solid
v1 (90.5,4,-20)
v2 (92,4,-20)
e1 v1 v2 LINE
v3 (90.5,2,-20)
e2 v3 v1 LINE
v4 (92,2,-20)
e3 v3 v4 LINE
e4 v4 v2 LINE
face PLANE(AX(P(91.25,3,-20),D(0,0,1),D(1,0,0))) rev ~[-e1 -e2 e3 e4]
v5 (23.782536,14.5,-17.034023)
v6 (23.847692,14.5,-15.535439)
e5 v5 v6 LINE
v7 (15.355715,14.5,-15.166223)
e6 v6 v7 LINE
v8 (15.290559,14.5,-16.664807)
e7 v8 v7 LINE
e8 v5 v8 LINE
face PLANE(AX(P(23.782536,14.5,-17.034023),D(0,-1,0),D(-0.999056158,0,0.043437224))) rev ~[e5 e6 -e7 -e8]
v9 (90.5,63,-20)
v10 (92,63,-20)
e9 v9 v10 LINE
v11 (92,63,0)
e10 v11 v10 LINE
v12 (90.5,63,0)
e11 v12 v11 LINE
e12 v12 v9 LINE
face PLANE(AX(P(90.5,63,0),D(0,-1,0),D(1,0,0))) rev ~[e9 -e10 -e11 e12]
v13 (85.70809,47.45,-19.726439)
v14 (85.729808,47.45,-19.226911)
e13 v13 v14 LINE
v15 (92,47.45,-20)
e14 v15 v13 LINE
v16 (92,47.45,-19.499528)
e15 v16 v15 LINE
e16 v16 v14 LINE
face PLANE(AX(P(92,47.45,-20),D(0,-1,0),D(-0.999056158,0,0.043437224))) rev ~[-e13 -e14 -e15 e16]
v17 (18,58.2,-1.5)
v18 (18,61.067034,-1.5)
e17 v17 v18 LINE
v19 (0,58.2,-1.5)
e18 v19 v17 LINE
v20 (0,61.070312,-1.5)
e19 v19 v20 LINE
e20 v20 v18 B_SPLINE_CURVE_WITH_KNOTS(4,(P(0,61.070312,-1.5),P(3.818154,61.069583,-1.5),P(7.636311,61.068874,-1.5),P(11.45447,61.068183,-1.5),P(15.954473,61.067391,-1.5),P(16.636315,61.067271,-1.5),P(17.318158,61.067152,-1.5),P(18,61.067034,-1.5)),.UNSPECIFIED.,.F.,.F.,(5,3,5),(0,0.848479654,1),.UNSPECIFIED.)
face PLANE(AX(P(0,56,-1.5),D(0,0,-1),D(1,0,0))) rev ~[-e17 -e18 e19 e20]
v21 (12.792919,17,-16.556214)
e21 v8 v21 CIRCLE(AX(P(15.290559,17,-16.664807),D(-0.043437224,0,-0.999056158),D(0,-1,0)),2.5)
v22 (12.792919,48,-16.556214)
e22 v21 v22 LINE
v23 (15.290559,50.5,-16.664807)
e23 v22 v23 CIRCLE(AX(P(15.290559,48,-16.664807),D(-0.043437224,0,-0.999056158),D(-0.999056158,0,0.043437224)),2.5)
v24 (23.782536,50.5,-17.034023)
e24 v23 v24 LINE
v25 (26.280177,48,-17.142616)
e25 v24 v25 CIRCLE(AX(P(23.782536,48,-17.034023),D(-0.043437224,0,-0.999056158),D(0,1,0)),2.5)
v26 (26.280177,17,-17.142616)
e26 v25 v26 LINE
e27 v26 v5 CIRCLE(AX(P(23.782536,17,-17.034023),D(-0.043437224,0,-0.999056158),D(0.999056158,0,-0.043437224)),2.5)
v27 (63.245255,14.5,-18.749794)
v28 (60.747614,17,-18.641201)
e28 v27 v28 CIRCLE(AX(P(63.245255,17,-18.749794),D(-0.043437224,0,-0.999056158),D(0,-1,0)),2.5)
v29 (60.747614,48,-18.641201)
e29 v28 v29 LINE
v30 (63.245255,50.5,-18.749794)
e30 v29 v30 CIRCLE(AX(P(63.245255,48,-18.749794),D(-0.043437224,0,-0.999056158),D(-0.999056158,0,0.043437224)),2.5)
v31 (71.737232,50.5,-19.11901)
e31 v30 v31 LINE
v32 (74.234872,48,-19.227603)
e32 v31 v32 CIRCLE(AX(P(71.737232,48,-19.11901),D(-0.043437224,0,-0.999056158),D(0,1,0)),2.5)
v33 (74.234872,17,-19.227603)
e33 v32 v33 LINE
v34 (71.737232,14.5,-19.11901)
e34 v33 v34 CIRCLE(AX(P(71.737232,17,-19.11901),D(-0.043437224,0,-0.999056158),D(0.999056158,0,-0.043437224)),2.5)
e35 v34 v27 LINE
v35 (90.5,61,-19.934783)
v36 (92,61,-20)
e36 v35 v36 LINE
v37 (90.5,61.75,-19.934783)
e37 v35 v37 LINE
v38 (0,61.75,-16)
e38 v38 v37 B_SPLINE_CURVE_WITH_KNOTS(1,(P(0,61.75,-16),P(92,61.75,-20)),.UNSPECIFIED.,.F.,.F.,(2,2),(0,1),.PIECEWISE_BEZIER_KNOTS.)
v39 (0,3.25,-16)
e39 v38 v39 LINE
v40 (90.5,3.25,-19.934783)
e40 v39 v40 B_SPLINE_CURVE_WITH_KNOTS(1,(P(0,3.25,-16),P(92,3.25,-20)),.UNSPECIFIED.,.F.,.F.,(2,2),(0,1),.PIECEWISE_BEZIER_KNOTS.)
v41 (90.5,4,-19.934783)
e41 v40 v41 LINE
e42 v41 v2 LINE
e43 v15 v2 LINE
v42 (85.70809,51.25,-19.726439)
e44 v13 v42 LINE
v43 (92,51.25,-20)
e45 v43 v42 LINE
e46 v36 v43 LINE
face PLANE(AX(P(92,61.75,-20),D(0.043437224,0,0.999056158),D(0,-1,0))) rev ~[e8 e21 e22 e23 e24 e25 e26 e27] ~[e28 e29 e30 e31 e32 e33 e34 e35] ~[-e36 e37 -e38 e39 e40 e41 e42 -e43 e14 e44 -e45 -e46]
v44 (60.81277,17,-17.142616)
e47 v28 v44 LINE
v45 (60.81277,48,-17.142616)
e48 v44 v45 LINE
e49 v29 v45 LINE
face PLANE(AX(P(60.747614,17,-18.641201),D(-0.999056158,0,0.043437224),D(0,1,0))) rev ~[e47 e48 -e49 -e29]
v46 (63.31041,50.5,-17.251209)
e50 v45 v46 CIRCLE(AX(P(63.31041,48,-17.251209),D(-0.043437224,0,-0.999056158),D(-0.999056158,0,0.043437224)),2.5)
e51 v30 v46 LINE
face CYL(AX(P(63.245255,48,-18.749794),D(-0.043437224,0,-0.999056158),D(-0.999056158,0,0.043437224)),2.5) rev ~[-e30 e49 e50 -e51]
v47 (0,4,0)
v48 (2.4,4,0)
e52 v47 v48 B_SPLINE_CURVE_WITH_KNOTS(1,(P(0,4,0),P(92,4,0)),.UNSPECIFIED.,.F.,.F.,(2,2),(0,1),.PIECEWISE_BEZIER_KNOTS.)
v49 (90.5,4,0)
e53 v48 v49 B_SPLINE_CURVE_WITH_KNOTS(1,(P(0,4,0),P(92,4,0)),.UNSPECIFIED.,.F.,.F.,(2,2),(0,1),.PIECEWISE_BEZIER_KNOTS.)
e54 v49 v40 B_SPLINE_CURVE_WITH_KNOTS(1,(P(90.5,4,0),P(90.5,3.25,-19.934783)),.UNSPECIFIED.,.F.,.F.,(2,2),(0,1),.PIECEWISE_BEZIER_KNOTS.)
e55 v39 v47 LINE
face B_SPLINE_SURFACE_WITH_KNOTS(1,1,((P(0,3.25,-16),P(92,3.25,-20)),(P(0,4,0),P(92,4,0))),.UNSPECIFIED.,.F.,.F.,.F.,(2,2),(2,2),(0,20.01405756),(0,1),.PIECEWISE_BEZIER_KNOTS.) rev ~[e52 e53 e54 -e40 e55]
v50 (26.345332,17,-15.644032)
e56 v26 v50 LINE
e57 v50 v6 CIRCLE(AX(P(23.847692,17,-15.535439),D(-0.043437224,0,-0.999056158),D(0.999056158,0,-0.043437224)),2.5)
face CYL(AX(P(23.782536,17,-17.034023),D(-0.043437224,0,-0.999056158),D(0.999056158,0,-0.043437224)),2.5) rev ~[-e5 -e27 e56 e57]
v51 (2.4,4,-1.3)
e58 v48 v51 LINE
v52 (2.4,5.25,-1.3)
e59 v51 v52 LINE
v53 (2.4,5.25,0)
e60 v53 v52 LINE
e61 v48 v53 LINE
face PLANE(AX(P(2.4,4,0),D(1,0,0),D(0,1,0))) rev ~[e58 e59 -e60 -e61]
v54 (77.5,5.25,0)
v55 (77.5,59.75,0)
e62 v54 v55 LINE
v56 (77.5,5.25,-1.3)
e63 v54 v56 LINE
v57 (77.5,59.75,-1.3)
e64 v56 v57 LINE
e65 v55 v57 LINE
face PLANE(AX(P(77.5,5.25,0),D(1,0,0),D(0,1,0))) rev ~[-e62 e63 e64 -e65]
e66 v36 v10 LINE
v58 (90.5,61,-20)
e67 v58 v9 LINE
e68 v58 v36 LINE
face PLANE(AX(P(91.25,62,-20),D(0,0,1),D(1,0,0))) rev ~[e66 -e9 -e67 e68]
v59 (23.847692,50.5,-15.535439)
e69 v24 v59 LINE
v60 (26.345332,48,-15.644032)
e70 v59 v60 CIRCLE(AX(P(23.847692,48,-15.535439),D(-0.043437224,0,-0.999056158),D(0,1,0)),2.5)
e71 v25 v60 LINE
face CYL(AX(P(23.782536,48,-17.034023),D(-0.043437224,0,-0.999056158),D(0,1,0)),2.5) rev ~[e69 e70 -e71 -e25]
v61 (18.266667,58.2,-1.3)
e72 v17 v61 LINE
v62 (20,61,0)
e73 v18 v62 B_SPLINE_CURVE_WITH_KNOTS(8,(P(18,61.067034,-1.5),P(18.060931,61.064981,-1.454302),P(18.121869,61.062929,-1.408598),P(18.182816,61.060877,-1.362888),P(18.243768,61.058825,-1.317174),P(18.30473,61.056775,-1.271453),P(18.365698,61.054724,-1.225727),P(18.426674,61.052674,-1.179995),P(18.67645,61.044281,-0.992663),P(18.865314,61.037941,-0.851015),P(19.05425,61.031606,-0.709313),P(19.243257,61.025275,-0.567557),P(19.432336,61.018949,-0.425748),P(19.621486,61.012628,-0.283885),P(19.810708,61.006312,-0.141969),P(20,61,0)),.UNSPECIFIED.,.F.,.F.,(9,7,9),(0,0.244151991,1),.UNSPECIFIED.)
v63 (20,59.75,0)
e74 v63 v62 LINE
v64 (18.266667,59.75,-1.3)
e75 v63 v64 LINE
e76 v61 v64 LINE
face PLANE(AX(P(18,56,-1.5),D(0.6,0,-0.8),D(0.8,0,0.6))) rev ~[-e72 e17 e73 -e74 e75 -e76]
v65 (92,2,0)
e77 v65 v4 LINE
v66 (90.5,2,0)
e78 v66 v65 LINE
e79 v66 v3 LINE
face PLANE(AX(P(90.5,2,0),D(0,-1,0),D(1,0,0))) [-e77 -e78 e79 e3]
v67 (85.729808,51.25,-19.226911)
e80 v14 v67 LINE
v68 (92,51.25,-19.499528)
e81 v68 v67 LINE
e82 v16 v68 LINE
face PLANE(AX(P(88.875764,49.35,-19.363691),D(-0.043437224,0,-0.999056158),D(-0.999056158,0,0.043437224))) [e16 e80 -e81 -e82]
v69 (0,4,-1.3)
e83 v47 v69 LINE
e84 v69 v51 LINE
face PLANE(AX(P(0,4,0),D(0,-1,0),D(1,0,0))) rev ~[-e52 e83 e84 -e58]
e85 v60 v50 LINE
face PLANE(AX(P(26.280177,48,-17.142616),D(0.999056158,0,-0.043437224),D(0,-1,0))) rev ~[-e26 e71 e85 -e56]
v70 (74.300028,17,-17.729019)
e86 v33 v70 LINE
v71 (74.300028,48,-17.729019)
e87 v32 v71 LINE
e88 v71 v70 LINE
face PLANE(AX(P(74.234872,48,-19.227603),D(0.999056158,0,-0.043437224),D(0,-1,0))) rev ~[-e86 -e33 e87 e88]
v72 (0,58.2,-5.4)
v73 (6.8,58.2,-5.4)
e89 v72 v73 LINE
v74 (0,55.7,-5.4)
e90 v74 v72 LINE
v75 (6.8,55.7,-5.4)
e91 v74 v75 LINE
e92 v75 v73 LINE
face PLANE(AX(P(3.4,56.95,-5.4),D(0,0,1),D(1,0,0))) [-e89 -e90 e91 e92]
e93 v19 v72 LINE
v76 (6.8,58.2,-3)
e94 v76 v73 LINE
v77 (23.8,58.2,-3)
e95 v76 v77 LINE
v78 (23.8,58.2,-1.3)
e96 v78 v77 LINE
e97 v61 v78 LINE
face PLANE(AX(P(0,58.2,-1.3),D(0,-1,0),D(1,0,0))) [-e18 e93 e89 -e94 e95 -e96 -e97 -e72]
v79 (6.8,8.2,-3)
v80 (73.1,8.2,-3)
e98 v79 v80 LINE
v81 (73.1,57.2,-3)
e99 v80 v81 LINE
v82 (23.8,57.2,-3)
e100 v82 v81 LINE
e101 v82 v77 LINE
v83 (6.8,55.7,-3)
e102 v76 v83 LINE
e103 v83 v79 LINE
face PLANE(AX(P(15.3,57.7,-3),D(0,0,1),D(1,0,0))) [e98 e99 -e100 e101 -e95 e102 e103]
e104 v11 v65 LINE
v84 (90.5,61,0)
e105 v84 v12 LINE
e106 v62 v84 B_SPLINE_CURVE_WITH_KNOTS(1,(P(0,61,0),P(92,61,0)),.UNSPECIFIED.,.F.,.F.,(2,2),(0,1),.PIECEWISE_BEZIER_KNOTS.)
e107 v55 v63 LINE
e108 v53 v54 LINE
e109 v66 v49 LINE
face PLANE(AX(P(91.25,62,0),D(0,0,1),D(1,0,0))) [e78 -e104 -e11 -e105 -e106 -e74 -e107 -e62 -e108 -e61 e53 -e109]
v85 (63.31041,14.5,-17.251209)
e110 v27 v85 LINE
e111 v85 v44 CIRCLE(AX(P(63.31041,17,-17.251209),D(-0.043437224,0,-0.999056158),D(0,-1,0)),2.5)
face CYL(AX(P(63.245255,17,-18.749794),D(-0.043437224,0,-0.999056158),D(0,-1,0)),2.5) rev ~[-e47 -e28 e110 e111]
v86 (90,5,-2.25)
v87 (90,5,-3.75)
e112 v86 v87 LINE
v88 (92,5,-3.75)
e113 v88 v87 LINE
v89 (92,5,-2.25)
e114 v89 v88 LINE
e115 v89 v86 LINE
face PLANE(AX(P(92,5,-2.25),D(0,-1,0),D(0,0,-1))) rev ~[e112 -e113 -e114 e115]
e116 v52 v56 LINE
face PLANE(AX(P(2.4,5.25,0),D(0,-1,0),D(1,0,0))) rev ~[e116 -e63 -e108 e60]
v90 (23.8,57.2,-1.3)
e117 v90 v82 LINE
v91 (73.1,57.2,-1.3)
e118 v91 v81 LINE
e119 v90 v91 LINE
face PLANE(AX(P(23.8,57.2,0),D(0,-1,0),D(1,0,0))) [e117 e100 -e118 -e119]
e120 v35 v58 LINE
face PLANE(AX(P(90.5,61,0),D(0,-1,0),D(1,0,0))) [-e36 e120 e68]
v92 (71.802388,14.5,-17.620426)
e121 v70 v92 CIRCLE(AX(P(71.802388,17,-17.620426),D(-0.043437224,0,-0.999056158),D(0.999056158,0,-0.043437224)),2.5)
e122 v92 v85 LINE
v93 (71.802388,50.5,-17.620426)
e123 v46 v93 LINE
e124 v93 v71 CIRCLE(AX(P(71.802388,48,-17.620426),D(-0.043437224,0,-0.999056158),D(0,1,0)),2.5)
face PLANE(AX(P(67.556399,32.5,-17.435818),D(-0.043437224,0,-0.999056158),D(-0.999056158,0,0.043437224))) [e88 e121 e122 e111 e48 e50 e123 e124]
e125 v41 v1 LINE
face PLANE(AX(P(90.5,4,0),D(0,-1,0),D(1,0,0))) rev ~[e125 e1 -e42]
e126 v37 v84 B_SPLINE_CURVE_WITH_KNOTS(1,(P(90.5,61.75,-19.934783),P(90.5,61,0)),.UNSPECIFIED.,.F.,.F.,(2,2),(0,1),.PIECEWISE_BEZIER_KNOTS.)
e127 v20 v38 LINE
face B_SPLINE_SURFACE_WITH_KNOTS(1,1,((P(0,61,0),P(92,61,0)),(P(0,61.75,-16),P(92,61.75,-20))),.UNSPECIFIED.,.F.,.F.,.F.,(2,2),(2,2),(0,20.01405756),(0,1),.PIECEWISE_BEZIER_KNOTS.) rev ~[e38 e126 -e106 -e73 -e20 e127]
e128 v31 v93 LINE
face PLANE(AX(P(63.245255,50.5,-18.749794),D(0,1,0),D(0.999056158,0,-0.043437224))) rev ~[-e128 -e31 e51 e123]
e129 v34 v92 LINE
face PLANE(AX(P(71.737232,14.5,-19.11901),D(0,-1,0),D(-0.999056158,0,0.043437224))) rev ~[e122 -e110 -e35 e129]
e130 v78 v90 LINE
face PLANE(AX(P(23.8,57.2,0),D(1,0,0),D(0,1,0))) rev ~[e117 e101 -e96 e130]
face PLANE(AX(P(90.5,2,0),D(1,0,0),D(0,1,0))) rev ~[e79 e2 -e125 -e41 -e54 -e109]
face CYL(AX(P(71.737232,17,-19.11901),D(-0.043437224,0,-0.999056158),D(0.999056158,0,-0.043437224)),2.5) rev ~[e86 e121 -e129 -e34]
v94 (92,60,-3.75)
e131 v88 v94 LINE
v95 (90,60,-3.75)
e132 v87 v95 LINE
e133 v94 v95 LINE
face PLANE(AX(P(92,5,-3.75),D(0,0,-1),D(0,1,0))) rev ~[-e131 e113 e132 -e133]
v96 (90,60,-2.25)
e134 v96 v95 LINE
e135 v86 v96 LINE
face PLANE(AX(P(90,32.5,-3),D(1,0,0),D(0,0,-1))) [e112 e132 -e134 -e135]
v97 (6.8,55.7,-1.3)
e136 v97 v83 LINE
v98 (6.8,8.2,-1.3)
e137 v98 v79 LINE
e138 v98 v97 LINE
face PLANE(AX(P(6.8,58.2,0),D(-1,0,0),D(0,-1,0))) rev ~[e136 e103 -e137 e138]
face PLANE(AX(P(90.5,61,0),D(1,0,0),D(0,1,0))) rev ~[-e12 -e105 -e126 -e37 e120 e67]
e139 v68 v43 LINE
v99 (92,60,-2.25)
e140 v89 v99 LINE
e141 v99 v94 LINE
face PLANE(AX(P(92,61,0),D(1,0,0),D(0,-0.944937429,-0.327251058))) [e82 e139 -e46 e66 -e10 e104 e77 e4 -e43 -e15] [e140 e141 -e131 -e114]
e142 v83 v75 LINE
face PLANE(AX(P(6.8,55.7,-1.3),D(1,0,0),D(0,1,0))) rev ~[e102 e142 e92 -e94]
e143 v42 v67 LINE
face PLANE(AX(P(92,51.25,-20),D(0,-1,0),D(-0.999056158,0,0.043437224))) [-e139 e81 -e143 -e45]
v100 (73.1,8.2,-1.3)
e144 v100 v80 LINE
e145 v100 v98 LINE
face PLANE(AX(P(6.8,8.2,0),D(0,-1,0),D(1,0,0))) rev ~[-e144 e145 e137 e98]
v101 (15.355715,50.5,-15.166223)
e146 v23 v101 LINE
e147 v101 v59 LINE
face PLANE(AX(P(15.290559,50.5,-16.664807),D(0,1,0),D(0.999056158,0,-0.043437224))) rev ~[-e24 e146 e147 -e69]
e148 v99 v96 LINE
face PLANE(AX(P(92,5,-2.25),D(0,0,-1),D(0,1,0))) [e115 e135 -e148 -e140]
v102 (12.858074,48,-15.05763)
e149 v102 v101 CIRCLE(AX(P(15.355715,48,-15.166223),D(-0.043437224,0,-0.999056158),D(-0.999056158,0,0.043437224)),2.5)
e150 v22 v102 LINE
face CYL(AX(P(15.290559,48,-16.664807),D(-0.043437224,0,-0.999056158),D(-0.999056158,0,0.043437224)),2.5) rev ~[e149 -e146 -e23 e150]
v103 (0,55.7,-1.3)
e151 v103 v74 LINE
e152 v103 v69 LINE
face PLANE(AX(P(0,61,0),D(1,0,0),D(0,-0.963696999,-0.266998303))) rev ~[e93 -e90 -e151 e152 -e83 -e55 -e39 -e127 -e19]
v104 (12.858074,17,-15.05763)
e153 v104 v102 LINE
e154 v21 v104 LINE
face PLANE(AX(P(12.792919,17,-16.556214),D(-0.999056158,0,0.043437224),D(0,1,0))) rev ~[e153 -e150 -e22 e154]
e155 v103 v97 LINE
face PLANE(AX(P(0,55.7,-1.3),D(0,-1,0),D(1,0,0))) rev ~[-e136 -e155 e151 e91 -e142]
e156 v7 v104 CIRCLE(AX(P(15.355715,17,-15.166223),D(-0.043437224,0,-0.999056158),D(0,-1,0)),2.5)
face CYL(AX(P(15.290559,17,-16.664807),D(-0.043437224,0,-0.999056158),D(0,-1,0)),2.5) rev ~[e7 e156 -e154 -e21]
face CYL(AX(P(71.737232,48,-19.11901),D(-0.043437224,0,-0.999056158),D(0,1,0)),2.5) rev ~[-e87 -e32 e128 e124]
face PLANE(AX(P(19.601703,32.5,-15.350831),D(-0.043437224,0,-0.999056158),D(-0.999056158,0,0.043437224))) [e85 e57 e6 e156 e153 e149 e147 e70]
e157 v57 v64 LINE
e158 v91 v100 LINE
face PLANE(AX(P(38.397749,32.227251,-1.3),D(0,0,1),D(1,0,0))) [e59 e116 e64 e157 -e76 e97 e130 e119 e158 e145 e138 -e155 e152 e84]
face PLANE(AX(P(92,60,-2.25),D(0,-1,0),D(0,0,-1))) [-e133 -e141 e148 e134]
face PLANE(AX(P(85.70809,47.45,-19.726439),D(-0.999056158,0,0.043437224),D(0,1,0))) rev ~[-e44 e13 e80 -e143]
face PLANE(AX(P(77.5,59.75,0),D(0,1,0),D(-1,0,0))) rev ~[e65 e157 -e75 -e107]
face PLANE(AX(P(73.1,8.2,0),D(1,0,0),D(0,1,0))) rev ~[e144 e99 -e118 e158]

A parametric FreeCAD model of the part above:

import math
import FreeCAD as App
import Part
import Sketcher
from FreeCAD import Vector

doc = App.newDocument("Part")
body = doc.addObject("PartDesign::Body", "Body")

sketch1 = body.newObject("Sketcher::SketchObject", "Sketch")
sketch1.AttachmentSupport = (doc.getObject("YZ_Plane"), [""])
sketch1.MapMode = "FlatFace"
sketch1.addGeometry(Part.LineSegment(Vector(61.75, -16, 0), Vector(61, 0, 0)), False)
sketch1.addGeometry(Part.LineSegment(Vector(61, 0, 0), Vector(4, 0, 0)), False)
sketch1.addGeometry(Part.LineSegment(Vector(4, 0, 0), Vector(3.25, -16, 0)), False)
sketch1.addGeometry(Part.LineSegment(Vector(3.25, -16, 0), Vector(61.75, -16, 0)), False)
sketch1.addConstraint(Sketcher.Constraint("Coincident", 0, 2, 1, 1))
sketch1.addConstraint(Sketcher.Constraint("Coincident", 1, 2, 2, 1))
sketch1.addConstraint(Sketcher.Constraint("Coincident", 2, 2, 3, 1))
sketch1.addConstraint(Sketcher.Constraint("Coincident", 3, 2, 0, 1))
sketch1.addConstraint(Sketcher.Constraint("Horizontal", 1))
sketch1.addConstraint(Sketcher.Constraint("Horizontal", 3))
sketch1.addConstraint(Sketcher.Constraint("PointOnObject", 0, 2, -1))
sketch1.addConstraint(Sketcher.Constraint("Equal", 0, 2))
sketch1.addConstraint(Sketcher.Constraint("DistanceX", 1, 2, 1, 1, 57.0))
sketch1.addConstraint(Sketcher.Constraint("DistanceX", 3, 1, 3, 2, 58.5))
sketch1.addConstraint(Sketcher.Constraint("DistanceX", -1, 1, 0, 2, 61.0))
sketch1.addConstraint(Sketcher.Constraint("DistanceY", 2, 2, -1, 1, 16.0))

sketch2 = body.newObject("Sketcher::SketchObject", "Sketch001")
sketch2.AttachmentSupport = (doc.getObject("YZ_Plane"), [""])
sketch2.MapMode = "FlatFace"
sketch2.AttachmentOffset = App.Placement(Vector(0, 0, 92), App.Rotation())
sketch2.addGeometry(Part.LineSegment(Vector(61.75, -20, 0), Vector(61, 0, 0)), False)
sketch2.addGeometry(Part.LineSegment(Vector(61, 0, 0), Vector(4, 0, 0)), False)
sketch2.addGeometry(Part.LineSegment(Vector(4, 0, 0), Vector(3.25, -20, 0)), False)
sketch2.addGeometry(Part.LineSegment(Vector(3.25, -20, 0), Vector(61.75, -20, 0)), False)
sketch2.addConstraint(Sketcher.Constraint("Coincident", 0, 2, 1, 1))
sketch2.addConstraint(Sketcher.Constraint("Coincident", 1, 2, 2, 1))
sketch2.addConstraint(Sketcher.Constraint("Coincident", 2, 2, 3, 1))
sketch2.addConstraint(Sketcher.Constraint("Coincident", 3, 2, 0, 1))
sketch2.addConstraint(Sketcher.Constraint("Horizontal", 1))
sketch2.addConstraint(Sketcher.Constraint("Horizontal", 3))
sketch2.addConstraint(Sketcher.Constraint("PointOnObject", 0, 2, -1))
sketch2.addConstraint(Sketcher.Constraint("Equal", 0, 2))
sketch2.addConstraint(Sketcher.Constraint("DistanceX", 1, 2, 1, 1, 57.0))
sketch2.addConstraint(Sketcher.Constraint("DistanceX", 3, 1, 3, 2, 58.5))
sketch2.addConstraint(Sketcher.Constraint("DistanceX", -1, 1, 0, 2, 61.0))
sketch2.addConstraint(Sketcher.Constraint("DistanceY", 2, 2, -1, 1, 20.0))

additiveloft = body.newObject("PartDesign::AdditiveLoft", "AdditiveLoft")
additiveloft.Profile = sketch1
additiveloft.Sections = [sketch2]

sketch3 = body.newObject("Sketcher::SketchObject", "Sketch002")
sketch3.AttachmentSupport = (doc.getObject("XY_Plane"), [""])
sketch3.MapMode = "FlatFace"
sketch3.addGeometry(Part.LineSegment(Vector(6.8, 58.2, 0), Vector(6.8, 8.2, 0)), False)
sketch3.addGeometry(Part.LineSegment(Vector(6.8, 8.2, 0), Vector(73.1, 8.2, 0)), False)
sketch3.addGeometry(Part.LineSegment(Vector(73.1, 8.2, 0), Vector(73.1, 57.2, 0)), False)
sketch3.addGeometry(Part.LineSegment(Vector(73.1, 57.2, 0), Vector(23.8, 57.2, 0)), False)
sketch3.addGeometry(Part.LineSegment(Vector(23.8, 57.2, 0), Vector(23.8, 58.2, 0)), False)
sketch3.addGeometry(Part.LineSegment(Vector(23.8, 58.2, 0), Vector(6.8, 58.2, 0)), False)
sketch3.addConstraint(Sketcher.Constraint("Coincident", 0, 2, 1, 1))
sketch3.addConstraint(Sketcher.Constraint("Coincident", 1, 2, 2, 1))
sketch3.addConstraint(Sketcher.Constraint("Coincident", 2, 2, 3, 1))
sketch3.addConstraint(Sketcher.Constraint("Coincident", 3, 2, 4, 1))
sketch3.addConstraint(Sketcher.Constraint("Coincident", 4, 2, 5, 1))
sketch3.addConstraint(Sketcher.Constraint("Coincident", 5, 2, 0, 1))
sketch3.addConstraint(Sketcher.Constraint("Vertical", 0))
sketch3.addConstraint(Sketcher.Constraint("Horizontal", 1))
sketch3.addConstraint(Sketcher.Constraint("Vertical", 2))
sketch3.addConstraint(Sketcher.Constraint("Horizontal", 3))
sketch3.addConstraint(Sketcher.Constraint("Vertical", 4))
sketch3.addConstraint(Sketcher.Constraint("Horizontal", 5))
sketch3.addConstraint(Sketcher.Constraint("DistanceX", 5, 2, 5, 1, 17.0))
sketch3.addConstraint(Sketcher.Constraint("DistanceY", 0, 2, 0, 1, 50.0))
sketch3.addConstraint(Sketcher.Constraint("DistanceY", 2, 1, 2, 2, 49.0))
sketch3.addConstraint(Sketcher.Constraint("DistanceX", 1, 1, 1, 2, 66.3))
sketch3.addConstraint(Sketcher.Constraint("DistanceX", -1, 1, 0, 2, 6.8))
sketch3.addConstraint(Sketcher.Constraint("DistanceY", -1, 1, 0, 2, 8.2))
pocket1 = body.newObject("PartDesign::Pocket", "Pocket")
pocket1.Profile = sketch3
pocket1.Length = 3

sketch4 = body.newObject("Sketcher::SketchObject", "Sketch003")
sketch4.AttachmentSupport = (doc.getObject("XY_Plane"), [""])
sketch4.MapMode = "FlatFace"
sketch4.addGeometry(Part.LineSegment(Vector(77.5, 5.25, 0), Vector(77.5, 59.75, 0)), False)
sketch4.addGeometry(Part.LineSegment(Vector(77.5, 59.75, 0), Vector(0, 59.75, 0)), False)
sketch4.addGeometry(Part.LineSegment(Vector(0, 59.75, 0), Vector(0, 4, 0)), False)
sketch4.addGeometry(Part.LineSegment(Vector(0, 4, 0), Vector(2.4, 4, 0)), False)
sketch4.addGeometry(Part.LineSegment(Vector(2.4, 4, 0), Vector(2.4, 5.25, 0)), False)
sketch4.addGeometry(Part.LineSegment(Vector(2.4, 5.25, 0), Vector(77.5, 5.25, 0)), False)
sketch4.addGeometry(Part.LineSegment(Vector(6.8, 58.2, 0), Vector(23.8, 58.2, 0)), False)
sketch4.addGeometry(Part.LineSegment(Vector(23.8, 58.2, 0), Vector(23.8, 57.2, 0)), False)
sketch4.addGeometry(Part.LineSegment(Vector(23.8, 57.2, 0), Vector(73.1, 57.2, 0)), False)
sketch4.addGeometry(Part.LineSegment(Vector(73.1, 57.2, 0), Vector(73.1, 8.2, 0)), False)
sketch4.addGeometry(Part.LineSegment(Vector(73.1, 8.2, 0), Vector(6.8, 8.2, 0)), False)
sketch4.addGeometry(Part.LineSegment(Vector(6.8, 8.2, 0), Vector(6.8, 58.2, 0)), False)
sketch4.addConstraint(Sketcher.Constraint("Coincident", 0, 2, 1, 1))
sketch4.addConstraint(Sketcher.Constraint("Coincident", 1, 2, 2, 1))
sketch4.addConstraint(Sketcher.Constraint("Coincident", 2, 2, 3, 1))
sketch4.addConstraint(Sketcher.Constraint("Coincident", 3, 2, 4, 1))
sketch4.addConstraint(Sketcher.Constraint("Coincident", 4, 2, 5, 1))
sketch4.addConstraint(Sketcher.Constraint("Coincident", 5, 2, 0, 1))
sketch4.addConstraint(Sketcher.Constraint("Coincident", 6, 2, 7, 1))
sketch4.addConstraint(Sketcher.Constraint("Coincident", 7, 2, 8, 1))
sketch4.addConstraint(Sketcher.Constraint("Coincident", 8, 2, 9, 1))
sketch4.addConstraint(Sketcher.Constraint("Coincident", 9, 2, 10, 1))
sketch4.addConstraint(Sketcher.Constraint("Coincident", 10, 2, 11, 1))
sketch4.addConstraint(Sketcher.Constraint("Coincident", 11, 2, 6, 1))
sketch4.addConstraint(Sketcher.Constraint("Vertical", 0))
sketch4.addConstraint(Sketcher.Constraint("Horizontal", 1))
sketch4.addConstraint(Sketcher.Constraint("Vertical", 2))
sketch4.addConstraint(Sketcher.Constraint("Horizontal", 3))
sketch4.addConstraint(Sketcher.Constraint("Vertical", 4))
sketch4.addConstraint(Sketcher.Constraint("Horizontal", 5))
sketch4.addConstraint(Sketcher.Constraint("Horizontal", 6))
sketch4.addConstraint(Sketcher.Constraint("Vertical", 7))
sketch4.addConstraint(Sketcher.Constraint("Horizontal", 8))
sketch4.addConstraint(Sketcher.Constraint("Vertical", 9))
sketch4.addConstraint(Sketcher.Constraint("Horizontal", 10))
sketch4.addConstraint(Sketcher.Constraint("Vertical", 11))
sketch4.addConstraint(Sketcher.Constraint("PointOnObject", 1, 2, -2))
sketch4.addConstraint(Sketcher.Constraint("DistanceX", 6, 1, 6, 2, 17.0))
sketch4.addConstraint(Sketcher.Constraint("DistanceY", 7, 2, 7, 1, 1.0))
sketch4.addConstraint(Sketcher.Constraint("DistanceY", 9, 2, 9, 1, 49.0))
sketch4.addConstraint(Sketcher.Constraint("DistanceX", 1, 2, 1, 1, 77.5))
sketch4.addConstraint(Sketcher.Constraint("DistanceX", 3, 1, 3, 2, 2.4))
sketch4.addConstraint(Sketcher.Constraint("DistanceX", 8, 1, 8, 2, 49.3))
sketch4.addConstraint(Sketcher.Constraint("DistanceY", 0, 1, 0, 2, 54.5))
sketch4.addConstraint(Sketcher.Constraint("DistanceY", -1, 1, 2, 2, 4.0))
sketch4.addConstraint(Sketcher.Constraint("DistanceY", 2, 2, 2, 1, 55.75))
sketch4.addConstraint(Sketcher.Constraint("DistanceX", -1, 1, 6, 2, 23.8))
sketch4.addConstraint(Sketcher.Constraint("DistanceY", -1, 1, 6, 2, 58.2))
pocket2 = body.newObject("PartDesign::Pocket", "Pocket001")
pocket2.Profile = sketch4
pocket2.Length = 1.3

sketch5 = body.newObject("Sketcher::SketchObject", "Sketch004")
sketch5.AttachmentSupport = (doc.getObject("XY_Plane"), [""])
sketch5.MapMode = "FlatFace"
sketch5.AttachmentOffset = App.Placement(Vector(0, 0, -1.3), App.Rotation())
sketch5.addGeometry(Part.LineSegment(Vector(0, 58.2, 0), Vector(0, 55.7, 0)), False)
sketch5.addGeometry(Part.LineSegment(Vector(0, 55.7, 0), Vector(6.8, 55.7, 0)), False)
sketch5.addGeometry(Part.LineSegment(Vector(6.8, 55.7, 0), Vector(6.8, 58.2, 0)), False)
sketch5.addGeometry(Part.LineSegment(Vector(6.8, 58.2, 0), Vector(0, 58.2, 0)), False)
sketch5.addConstraint(Sketcher.Constraint("Coincident", 0, 2, 1, 1))
sketch5.addConstraint(Sketcher.Constraint("Coincident", 1, 2, 2, 1))
sketch5.addConstraint(Sketcher.Constraint("Coincident", 2, 2, 3, 1))
sketch5.addConstraint(Sketcher.Constraint("Coincident", 3, 2, 0, 1))
sketch5.addConstraint(Sketcher.Constraint("Vertical", 0))
sketch5.addConstraint(Sketcher.Constraint("Horizontal", 1))
sketch5.addConstraint(Sketcher.Constraint("Vertical", 2))
sketch5.addConstraint(Sketcher.Constraint("Horizontal", 3))
sketch5.addConstraint(Sketcher.Constraint("PointOnObject", 0, 2, -2))
sketch5.addConstraint(Sketcher.Constraint("DistanceX", 1, 1, 1, 2, 6.8))
sketch5.addConstraint(Sketcher.Constraint("DistanceY", 0, 2, 0, 1, 2.5))
sketch5.addConstraint(Sketcher.Constraint("DistanceY", -1, 1, 0, 2, 55.7))
pocket3 = body.newObject("PartDesign::Pocket", "Pocket002")
pocket3.Profile = sketch5
pocket3.Length = 4.1

sketch6 = body.newObject("Sketcher::SketchObject", "Sketch005")
sketch6.Placement = App.Placement(Vector(-0.69434, 0, -15.969811), App.Rotation(Vector(-0.999056158, 0, 0.043437224), Vector(0, 0.999999999, 0), Vector(-0.043437224, 0, -0.999056158), "ZXY"))
sketch6.addGeometry(Part.LineSegment(Vector(-92.781911, 51.25, 0), Vector(-92.781911, 47.45, 0)), False)
sketch6.addGeometry(Part.LineSegment(Vector(-92.781911, 47.45, 0), Vector(-86.484057, 47.45, 0)), False)
sketch6.addGeometry(Part.LineSegment(Vector(-86.484057, 47.45, 0), Vector(-86.484057, 51.25, 0)), False)
sketch6.addGeometry(Part.LineSegment(Vector(-86.484057, 51.25, 0), Vector(-92.781911, 51.25, 0)), False)
sketch6.addConstraint(Sketcher.Constraint("Coincident", 0, 2, 1, 1))
sketch6.addConstraint(Sketcher.Constraint("Coincident", 1, 2, 2, 1))
sketch6.addConstraint(Sketcher.Constraint("Coincident", 2, 2, 3, 1))
sketch6.addConstraint(Sketcher.Constraint("Coincident", 3, 2, 0, 1))
sketch6.addConstraint(Sketcher.Constraint("Vertical", 0))
sketch6.addConstraint(Sketcher.Constraint("Horizontal", 1))
sketch6.addConstraint(Sketcher.Constraint("Vertical", 2))
sketch6.addConstraint(Sketcher.Constraint("Horizontal", 3))
sketch6.addConstraint(Sketcher.Constraint("DistanceY", 0, 2, 0, 1, 3.8))
sketch6.addConstraint(Sketcher.Constraint("DistanceY", -1, 1, 0, 2, 47.45))
sketch6.addConstraint(Sketcher.Constraint("DistanceX", 1, 1, 1, 2, 6.297854))
sketch6.addConstraint(Sketcher.Constraint("DistanceX", 0, 2, -1, 1, 92.781911))
pocket4 = body.newObject("PartDesign::Pocket", "Pocket003")
pocket4.Profile = sketch6
pocket4.Length = 0.5

sketch7 = body.newObject("Sketcher::SketchObject", "Sketch006")
sketch7.Placement = App.Placement(Vector(-0.69434, 0, -15.969811), App.Rotation(Vector(-0.999056158, 0, 0.043437224), Vector(0, 0.999999999, 0), Vector(-0.043437224, 0, -0.999056158), "ZXY"))
sketch7.addGeometry(Part.LineSegment(Vector(-72.5, 14.5, 0), Vector(-64, 14.5, 0)), False)
sketch7.addGeometry(Part.ArcOfCircle(Part.Circle(Vector(-64, 17, 0), Vector(0, 0, 1), 2.5), math.radians(-90), math.radians(0)), False)
sketch7.addGeometry(Part.LineSegment(Vector(-61.5, 17, 0), Vector(-61.5, 48, 0)), False)
sketch7.addGeometry(Part.ArcOfCircle(Part.Circle(Vector(-64, 48, 0), Vector(0, 0, 1), 2.5), math.radians(0), math.radians(90)), False)
sketch7.addGeometry(Part.LineSegment(Vector(-64, 50.5, 0), Vector(-72.5, 50.5, 0)), False)
sketch7.addGeometry(Part.ArcOfCircle(Part.Circle(Vector(-72.5, 48, 0), Vector(0, 0, 1), 2.5), math.radians(90), math.radians(180)), False)
sketch7.addGeometry(Part.LineSegment(Vector(-75, 48, 0), Vector(-75, 17, 0)), False)
sketch7.addGeometry(Part.ArcOfCircle(Part.Circle(Vector(-72.5, 17, 0), Vector(0, 0, 1), 2.5), math.radians(180), math.radians(270)), False)
sketch7.addGeometry(Part.LineSegment(Vector(-24.5, 14.5, 0), Vector(-16, 14.5, 0)), False)
sketch7.addGeometry(Part.ArcOfCircle(Part.Circle(Vector(-16, 17, 0), Vector(0, 0, 1), 2.5), math.radians(-90), math.radians(0)), False)
sketch7.addGeometry(Part.LineSegment(Vector(-13.5, 17, 0), Vector(-13.5, 48, 0)), False)
sketch7.addGeometry(Part.ArcOfCircle(Part.Circle(Vector(-16, 48, 0), Vector(0, 0, 1), 2.5), math.radians(0), math.radians(90)), False)
sketch7.addGeometry(Part.LineSegment(Vector(-16, 50.5, 0), Vector(-24.5, 50.5, 0)), False)
sketch7.addGeometry(Part.ArcOfCircle(Part.Circle(Vector(-24.5, 48, 0), Vector(0, 0, 1), 2.5), math.radians(90), math.radians(180)), False)
sketch7.addGeometry(Part.LineSegment(Vector(-27, 48, 0), Vector(-27, 17, 0)), False)
sketch7.addGeometry(Part.ArcOfCircle(Part.Circle(Vector(-24.5, 17, 0), Vector(0, 0, 1), 2.5), math.radians(180), math.radians(270)), False)
sketch7.addConstraint(Sketcher.Constraint("Tangent", 0, 2, 1, 1))
sketch7.addConstraint(Sketcher.Constraint("Tangent", 1, 2, 2, 1))
sketch7.addConstraint(Sketcher.Constraint("Tangent", 2, 2, 3, 1))
sketch7.addConstraint(Sketcher.Constraint("Tangent", 3, 2, 4, 1))
sketch7.addConstraint(Sketcher.Constraint("Tangent", 4, 2, 5, 1))
sketch7.addConstraint(Sketcher.Constraint("Tangent", 5, 2, 6, 1))
sketch7.addConstraint(Sketcher.Constraint("Tangent", 6, 2, 7, 1))
sketch7.addConstraint(Sketcher.Constraint("Tangent", 7, 2, 0, 1))
sketch7.addConstraint(Sketcher.Constraint("Tangent", 8, 2, 9, 1))
sketch7.addConstraint(Sketcher.Constraint("Tangent", 9, 2, 10, 1))
sketch7.addConstraint(Sketcher.Constraint("Tangent", 10, 2, 11, 1))
sketch7.addConstraint(Sketcher.Constraint("Tangent", 11, 2, 12, 1))
sketch7.addConstraint(Sketcher.Constraint("Tangent", 12, 2, 13, 1))
sketch7.addConstraint(Sketcher.Constraint("Tangent", 13, 2, 14, 1))
sketch7.addConstraint(Sketcher.Constraint("Tangent", 14, 2, 15, 1))
sketch7.addConstraint(Sketcher.Constraint("Tangent", 15, 2, 8, 1))
sketch7.addConstraint(Sketcher.Constraint("Horizontal", 0))
sketch7.addConstraint(Sketcher.Constraint("Vertical", 2))
sketch7.addConstraint(Sketcher.Constraint("Horizontal", 4))
sketch7.addConstraint(Sketcher.Constraint("Vertical", 6))
sketch7.addConstraint(Sketcher.Constraint("Horizontal", 8))
sketch7.addConstraint(Sketcher.Constraint("Vertical", 10))
sketch7.addConstraint(Sketcher.Constraint("Horizontal", 12))
sketch7.addConstraint(Sketcher.Constraint("Vertical", 14))
sketch7.addConstraint(Sketcher.Constraint("Equal", 1, 3))
sketch7.addConstraint(Sketcher.Constraint("Equal", 3, 5))
sketch7.addConstraint(Sketcher.Constraint("Equal", 5, 7))
sketch7.addConstraint(Sketcher.Constraint("Equal", 7, 9))
sketch7.addConstraint(Sketcher.Constraint("Equal", 9, 11))
sketch7.addConstraint(Sketcher.Constraint("Equal", 11, 13))
sketch7.addConstraint(Sketcher.Constraint("Equal", 13, 15))
sketch7.addConstraint(Sketcher.Constraint("Horizontal", 7, 3, 9, 3))
sketch7.addConstraint(Sketcher.Constraint("Horizontal", 5, 3, 11, 3))
sketch7.addConstraint(Sketcher.Constraint("Equal", 4, 8))
sketch7.addConstraint(Sketcher.Constraint("Radius", 1, 2.5))
sketch7.addConstraint(Sketcher.Constraint("DistanceY", 2, 1, 2, 2, 31.0))
sketch7.addConstraint(Sketcher.Constraint("DistanceX", 0, 1, 0, 2, 8.5))
sketch7.addConstraint(Sketcher.Constraint("DistanceX", 1, 3, -1, 1, 64.0))
sketch7.addConstraint(Sketcher.Constraint("DistanceY", -1, 1, 1, 3, 17.0))
sketch7.addConstraint(Sketcher.Constraint("DistanceX", 9, 3, -1, 1, 16.0))
pocket5 = body.newObject("PartDesign::Pocket", "Pocket004")
pocket5.Profile = sketch7
pocket5.Length = 1.5

sketch8 = body.newObject("Sketcher::SketchObject", "Sketch007")
sketch8.AttachmentSupport = (doc.getObject("XZ_Plane"), [""])
sketch8.MapMode = "FlatFace"
sketch8.AttachmentOffset = App.Placement(Vector(0, 0, -61), App.Rotation())
sketch8.addGeometry(Part.LineSegment(Vector(18, -1.5, 0), Vector(0, -1.5, 0)), False)
sketch8.addGeometry(Part.LineSegment(Vector(0, -1.5, 0), Vector(0, 0, 0)), False)
sketch8.addGeometry(Part.LineSegment(Vector(0, 0, 0), Vector(20, 0, 0)), False)
sketch8.addGeometry(Part.LineSegment(Vector(20, 0, 0), Vector(18, -1.5, 0)), False)
sketch8.addConstraint(Sketcher.Constraint("Coincident", 0, 2, 1, 1))
sketch8.addConstraint(Sketcher.Constraint("Coincident", 1, 2, 2, 1))
sketch8.addConstraint(Sketcher.Constraint("Coincident", 2, 2, 3, 1))
sketch8.addConstraint(Sketcher.Constraint("Coincident", 3, 2, 0, 1))
sketch8.addConstraint(Sketcher.Constraint("Horizontal", 0))
sketch8.addConstraint(Sketcher.Constraint("Vertical", 1))
sketch8.addConstraint(Sketcher.Constraint("Horizontal", 2))
sketch8.addConstraint(Sketcher.Constraint("Coincident", 1, 2, -1, 1))
sketch8.addConstraint(Sketcher.Constraint("DistanceX", 0, 2, 0, 1, 18.0))
sketch8.addConstraint(Sketcher.Constraint("DistanceX", 2, 1, 2, 2, 20.0))
sketch8.addConstraint(Sketcher.Constraint("DistanceY", 1, 1, 1, 2, 1.5))
pocket6 = body.newObject("PartDesign::Pocket", "Pocket005")
pocket6.Profile = sketch8
pocket6.Type = "TwoLengths"
pocket6.Length = 111.449366
pocket6.Length2 = 5

sketch9 = body.newObject("Sketcher::SketchObject", "Sketch008")
sketch9.AttachmentSupport = (doc.getObject("YZ_Plane"), [""])
sketch9.MapMode = "FlatFace"
sketch9.AttachmentOffset = App.Placement(Vector(0, 0, 92), App.Rotation())
sketch9.addGeometry(Part.LineSegment(Vector(60, -2.25, 0), Vector(5, -2.25, 0)), False)
sketch9.addGeometry(Part.LineSegment(Vector(5, -2.25, 0), Vector(5, -3.75, 0)), False)
sketch9.addGeometry(Part.LineSegment(Vector(5, -3.75, 0), Vector(60, -3.75, 0)), False)
sketch9.addGeometry(Part.LineSegment(Vector(60, -3.75, 0), Vector(60, -2.25, 0)), False)
sketch9.addConstraint(Sketcher.Constraint("Coincident", 0, 2, 1, 1))
sketch9.addConstraint(Sketcher.Constraint("Coincident", 1, 2, 2, 1))
sketch9.addConstraint(Sketcher.Constraint("Coincident", 2, 2, 3, 1))
sketch9.addConstraint(Sketcher.Constraint("Coincident", 3, 2, 0, 1))
sketch9.addConstraint(Sketcher.Constraint("Horizontal", 0))
sketch9.addConstraint(Sketcher.Constraint("Vertical", 1))
sketch9.addConstraint(Sketcher.Constraint("Horizontal", 2))
sketch9.addConstraint(Sketcher.Constraint("Vertical", 3))
sketch9.addConstraint(Sketcher.Constraint("DistanceX", 0, 2, 0, 1, 55.0))
sketch9.addConstraint(Sketcher.Constraint("DistanceY", 1, 2, 1, 1, 1.5))
sketch9.addConstraint(Sketcher.Constraint("DistanceX", -1, 1, 0, 2, 5.0))
sketch9.addConstraint(Sketcher.Constraint("DistanceY", 0, 2, -1, 1, 2.25))
pocket7 = body.newObject("PartDesign::Pocket", "Pocket006")
pocket7.Profile = sketch9
pocket7.Length = 2

sketch10 = body.newObject("Sketcher::SketchObject", "Sketch009")
sketch10.AttachmentSupport = (doc.getObject("XY_Plane"), [""])
sketch10.MapMode = "FlatFace"
sketch10.addGeometry(Part.LineSegment(Vector(90.5, 63, 0), Vector(90.5, 61, 0)), False)
sketch10.addGeometry(Part.LineSegment(Vector(90.5, 61, 0), Vector(92, 61, 0)), False)
sketch10.addGeometry(Part.LineSegment(Vector(92, 61, 0), Vector(92, 63, 0)), False)
sketch10.addGeometry(Part.LineSegment(Vector(92, 63, 0), Vector(90.5, 63, 0)), False)
sketch10.addGeometry(Part.LineSegment(Vector(90.5, 4, 0), Vector(90.5, 2, 0)), False)
sketch10.addGeometry(Part.LineSegment(Vector(90.5, 2, 0), Vector(92, 2, 0)), False)
sketch10.addGeometry(Part.LineSegment(Vector(92, 2, 0), Vector(92, 4, 0)), False)
sketch10.addGeometry(Part.LineSegment(Vector(92, 4, 0), Vector(90.5, 4, 0)), False)
sketch10.addConstraint(Sketcher.Constraint("Coincident", 0, 2, 1, 1))
sketch10.addConstraint(Sketcher.Constraint("Coincident", 1, 2, 2, 1))
sketch10.addConstraint(Sketcher.Constraint("Coincident", 2, 2, 3, 1))
sketch10.addConstraint(Sketcher.Constraint("Coincident", 3, 2, 0, 1))
sketch10.addConstraint(Sketcher.Constraint("Coincident", 4, 2, 5, 1))
sketch10.addConstraint(Sketcher.Constraint("Coincident", 5, 2, 6, 1))
sketch10.addConstraint(Sketcher.Constraint("Coincident", 6, 2, 7, 1))
sketch10.addConstraint(Sketcher.Constraint("Coincident", 7, 2, 4, 1))
sketch10.addConstraint(Sketcher.Constraint("Vertical", 0))
sketch10.addConstraint(Sketcher.Constraint("Horizontal", 1))
sketch10.addConstraint(Sketcher.Constraint("Vertical", 2))
sketch10.addConstraint(Sketcher.Constraint("Horizontal", 3))
sketch10.addConstraint(Sketcher.Constraint("Vertical", 4))
sketch10.addConstraint(Sketcher.Constraint("Horizontal", 5))
sketch10.addConstraint(Sketcher.Constraint("Vertical", 6))
sketch10.addConstraint(Sketcher.Constraint("Horizontal", 7))
sketch10.addConstraint(Sketcher.Constraint("Vertical", 3, 2, 4, 2))
sketch10.addConstraint(Sketcher.Constraint("Vertical", 2, 2, 5, 2))
sketch10.addConstraint(Sketcher.Constraint("Equal", 2, 4))
sketch10.addConstraint(Sketcher.Constraint("DistanceY", 0, 2, 0, 1, 2.0))
sketch10.addConstraint(Sketcher.Constraint("DistanceX", 1, 1, 1, 2, 1.5))
sketch10.addConstraint(Sketcher.Constraint("DistanceY", -1, 1, 0, 2, 61.0))
sketch10.addConstraint(Sketcher.Constraint("DistanceX", -1, 1, 1, 2, 92.0))
sketch10.addConstraint(Sketcher.Constraint("DistanceY", -1, 1, 4, 2, 2.0))
pad1 = body.newObject("PartDesign::Pad", "Pad")
pad1.Profile = sketch10
pad1.Length = 20
pad1.Reversed = True

doc.recompute()
